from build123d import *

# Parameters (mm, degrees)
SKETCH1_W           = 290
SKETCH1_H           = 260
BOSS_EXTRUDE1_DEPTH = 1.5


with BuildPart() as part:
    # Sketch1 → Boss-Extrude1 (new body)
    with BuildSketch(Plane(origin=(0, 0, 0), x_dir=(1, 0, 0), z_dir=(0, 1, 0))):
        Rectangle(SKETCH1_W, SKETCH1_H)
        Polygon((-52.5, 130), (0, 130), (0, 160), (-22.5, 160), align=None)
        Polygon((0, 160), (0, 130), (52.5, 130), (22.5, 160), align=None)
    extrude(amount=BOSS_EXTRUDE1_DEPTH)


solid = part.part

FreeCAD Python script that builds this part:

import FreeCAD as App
import Part
import Sketcher

V = App.Vector
Q = App.Units.Quantity

doc = App.newDocument("Part")
params = doc.addObject("Spreadsheet::Sheet", "Params")
for row, (alias, value) in enumerate([
    ("sketch1_width", "290 mm"),
    ("sketch1_width2", "45 mm"),
    ("sketch1_height", "260 mm"),
    ("sketch1_width3", "92.5 mm"),
    ("pad1_length", "1.5 mm"),
], start=1):
    params.set(f"A{row}", alias)
    params.set(f"B{row}", "=" + value)
    params.setAlias(f"B{row}", alias)

body = doc.addObject("PartDesign::Body", "Body")

# Sketch on XZ plane
sketch1 = doc.addObject("Sketcher::SketchObject", "Sketch")
body.addObject(sketch1)
sketch1.AttachmentSupport = (doc.XZ_Plane, [""])
sketch1.MapMode = "FlatFace"
sketch1.addGeometry([
    Part.LineSegment(V(-145, -130, 0), V(-145, 130, 0)),  # 0
    Part.LineSegment(V(-145, 130, 0), V(145, 130, 0)),  # 1
    Part.LineSegment(V(145, 130, 0), V(145, -130, 0)),  # 2
    Part.LineSegment(V(145, -130, 0), V(52, -130, 0)),  # 3
    Part.LineSegment(V(52, -130, 0), V(22, -160, 0)),  # 4
    Part.LineSegment(V(22, -160, 0), V(-22, -160, 0)),  # 5
    Part.LineSegment(V(-22, -160, 0), V(-52, -130, 0)),  # 6
    Part.LineSegment(V(-52, -130, 0), V(-145, -130, 0)),  # 7
], False)
sketch1.addConstraint([
    Sketcher.Constraint("Coincident", 0, 2, 1, 1),
    Sketcher.Constraint("Coincident", 1, 2, 2, 1),
    Sketcher.Constraint("Coincident", 2, 2, 3, 1),
    Sketcher.Constraint("Coincident", 3, 2, 4, 1),
    Sketcher.Constraint("Coincident", 4, 2, 5, 1),
    Sketcher.Constraint("Coincident", 5, 2, 6, 1),
    Sketcher.Constraint("Coincident", 6, 2, 7, 1),
    Sketcher.Constraint("Coincident", 7, 2, 0, 1),
    Sketcher.Constraint("Vertical", 0),
    Sketcher.Constraint("Horizontal", 1),
    Sketcher.Constraint("Vertical", 2),
    Sketcher.Constraint("Horizontal", 3),
    Sketcher.Constraint("Horizontal", 5),
    Sketcher.Constraint("Horizontal", 7),
    Sketcher.Constraint("Symmetric", 0, 2, 2, 2, -1, 1),
    Sketcher.Constraint("Symmetric", 3, 2, 6, 2, -2),
    Sketcher.Constraint("Perpendicular", 4, 6),
    Sketcher.Constraint("Equal", 4, 6),
    Sketcher.Constraint("DistanceX", 1, 1, 1, 2, Q("290 mm")),
    Sketcher.Constraint("DistanceX", 5, 2, 5, 1, Q("45 mm")),
    Sketcher.Constraint("DistanceY", 0, 1, 0, 2, Q("260 mm")),
    Sketcher.Constraint("DistanceX", 3, 2, 3, 1, Q("92.5 mm")),
])
sketch1.setExpression("Constraints[18]", "Params.sketch1_width")
sketch1.setExpression("Constraints[19]", "Params.sketch1_width2")
sketch1.setExpression("Constraints[20]", "Params.sketch1_height")
sketch1.setExpression("Constraints[21]", "Params.sketch1_width3")
pad1 = doc.addObject("PartDesign::Pad", "Pad")
body.addObject(pad1)
pad1.Profile = sketch1
pad1.setExpression("Length", "Params.pad1_length")
pad1.Reversed = True

doc.recompute()
